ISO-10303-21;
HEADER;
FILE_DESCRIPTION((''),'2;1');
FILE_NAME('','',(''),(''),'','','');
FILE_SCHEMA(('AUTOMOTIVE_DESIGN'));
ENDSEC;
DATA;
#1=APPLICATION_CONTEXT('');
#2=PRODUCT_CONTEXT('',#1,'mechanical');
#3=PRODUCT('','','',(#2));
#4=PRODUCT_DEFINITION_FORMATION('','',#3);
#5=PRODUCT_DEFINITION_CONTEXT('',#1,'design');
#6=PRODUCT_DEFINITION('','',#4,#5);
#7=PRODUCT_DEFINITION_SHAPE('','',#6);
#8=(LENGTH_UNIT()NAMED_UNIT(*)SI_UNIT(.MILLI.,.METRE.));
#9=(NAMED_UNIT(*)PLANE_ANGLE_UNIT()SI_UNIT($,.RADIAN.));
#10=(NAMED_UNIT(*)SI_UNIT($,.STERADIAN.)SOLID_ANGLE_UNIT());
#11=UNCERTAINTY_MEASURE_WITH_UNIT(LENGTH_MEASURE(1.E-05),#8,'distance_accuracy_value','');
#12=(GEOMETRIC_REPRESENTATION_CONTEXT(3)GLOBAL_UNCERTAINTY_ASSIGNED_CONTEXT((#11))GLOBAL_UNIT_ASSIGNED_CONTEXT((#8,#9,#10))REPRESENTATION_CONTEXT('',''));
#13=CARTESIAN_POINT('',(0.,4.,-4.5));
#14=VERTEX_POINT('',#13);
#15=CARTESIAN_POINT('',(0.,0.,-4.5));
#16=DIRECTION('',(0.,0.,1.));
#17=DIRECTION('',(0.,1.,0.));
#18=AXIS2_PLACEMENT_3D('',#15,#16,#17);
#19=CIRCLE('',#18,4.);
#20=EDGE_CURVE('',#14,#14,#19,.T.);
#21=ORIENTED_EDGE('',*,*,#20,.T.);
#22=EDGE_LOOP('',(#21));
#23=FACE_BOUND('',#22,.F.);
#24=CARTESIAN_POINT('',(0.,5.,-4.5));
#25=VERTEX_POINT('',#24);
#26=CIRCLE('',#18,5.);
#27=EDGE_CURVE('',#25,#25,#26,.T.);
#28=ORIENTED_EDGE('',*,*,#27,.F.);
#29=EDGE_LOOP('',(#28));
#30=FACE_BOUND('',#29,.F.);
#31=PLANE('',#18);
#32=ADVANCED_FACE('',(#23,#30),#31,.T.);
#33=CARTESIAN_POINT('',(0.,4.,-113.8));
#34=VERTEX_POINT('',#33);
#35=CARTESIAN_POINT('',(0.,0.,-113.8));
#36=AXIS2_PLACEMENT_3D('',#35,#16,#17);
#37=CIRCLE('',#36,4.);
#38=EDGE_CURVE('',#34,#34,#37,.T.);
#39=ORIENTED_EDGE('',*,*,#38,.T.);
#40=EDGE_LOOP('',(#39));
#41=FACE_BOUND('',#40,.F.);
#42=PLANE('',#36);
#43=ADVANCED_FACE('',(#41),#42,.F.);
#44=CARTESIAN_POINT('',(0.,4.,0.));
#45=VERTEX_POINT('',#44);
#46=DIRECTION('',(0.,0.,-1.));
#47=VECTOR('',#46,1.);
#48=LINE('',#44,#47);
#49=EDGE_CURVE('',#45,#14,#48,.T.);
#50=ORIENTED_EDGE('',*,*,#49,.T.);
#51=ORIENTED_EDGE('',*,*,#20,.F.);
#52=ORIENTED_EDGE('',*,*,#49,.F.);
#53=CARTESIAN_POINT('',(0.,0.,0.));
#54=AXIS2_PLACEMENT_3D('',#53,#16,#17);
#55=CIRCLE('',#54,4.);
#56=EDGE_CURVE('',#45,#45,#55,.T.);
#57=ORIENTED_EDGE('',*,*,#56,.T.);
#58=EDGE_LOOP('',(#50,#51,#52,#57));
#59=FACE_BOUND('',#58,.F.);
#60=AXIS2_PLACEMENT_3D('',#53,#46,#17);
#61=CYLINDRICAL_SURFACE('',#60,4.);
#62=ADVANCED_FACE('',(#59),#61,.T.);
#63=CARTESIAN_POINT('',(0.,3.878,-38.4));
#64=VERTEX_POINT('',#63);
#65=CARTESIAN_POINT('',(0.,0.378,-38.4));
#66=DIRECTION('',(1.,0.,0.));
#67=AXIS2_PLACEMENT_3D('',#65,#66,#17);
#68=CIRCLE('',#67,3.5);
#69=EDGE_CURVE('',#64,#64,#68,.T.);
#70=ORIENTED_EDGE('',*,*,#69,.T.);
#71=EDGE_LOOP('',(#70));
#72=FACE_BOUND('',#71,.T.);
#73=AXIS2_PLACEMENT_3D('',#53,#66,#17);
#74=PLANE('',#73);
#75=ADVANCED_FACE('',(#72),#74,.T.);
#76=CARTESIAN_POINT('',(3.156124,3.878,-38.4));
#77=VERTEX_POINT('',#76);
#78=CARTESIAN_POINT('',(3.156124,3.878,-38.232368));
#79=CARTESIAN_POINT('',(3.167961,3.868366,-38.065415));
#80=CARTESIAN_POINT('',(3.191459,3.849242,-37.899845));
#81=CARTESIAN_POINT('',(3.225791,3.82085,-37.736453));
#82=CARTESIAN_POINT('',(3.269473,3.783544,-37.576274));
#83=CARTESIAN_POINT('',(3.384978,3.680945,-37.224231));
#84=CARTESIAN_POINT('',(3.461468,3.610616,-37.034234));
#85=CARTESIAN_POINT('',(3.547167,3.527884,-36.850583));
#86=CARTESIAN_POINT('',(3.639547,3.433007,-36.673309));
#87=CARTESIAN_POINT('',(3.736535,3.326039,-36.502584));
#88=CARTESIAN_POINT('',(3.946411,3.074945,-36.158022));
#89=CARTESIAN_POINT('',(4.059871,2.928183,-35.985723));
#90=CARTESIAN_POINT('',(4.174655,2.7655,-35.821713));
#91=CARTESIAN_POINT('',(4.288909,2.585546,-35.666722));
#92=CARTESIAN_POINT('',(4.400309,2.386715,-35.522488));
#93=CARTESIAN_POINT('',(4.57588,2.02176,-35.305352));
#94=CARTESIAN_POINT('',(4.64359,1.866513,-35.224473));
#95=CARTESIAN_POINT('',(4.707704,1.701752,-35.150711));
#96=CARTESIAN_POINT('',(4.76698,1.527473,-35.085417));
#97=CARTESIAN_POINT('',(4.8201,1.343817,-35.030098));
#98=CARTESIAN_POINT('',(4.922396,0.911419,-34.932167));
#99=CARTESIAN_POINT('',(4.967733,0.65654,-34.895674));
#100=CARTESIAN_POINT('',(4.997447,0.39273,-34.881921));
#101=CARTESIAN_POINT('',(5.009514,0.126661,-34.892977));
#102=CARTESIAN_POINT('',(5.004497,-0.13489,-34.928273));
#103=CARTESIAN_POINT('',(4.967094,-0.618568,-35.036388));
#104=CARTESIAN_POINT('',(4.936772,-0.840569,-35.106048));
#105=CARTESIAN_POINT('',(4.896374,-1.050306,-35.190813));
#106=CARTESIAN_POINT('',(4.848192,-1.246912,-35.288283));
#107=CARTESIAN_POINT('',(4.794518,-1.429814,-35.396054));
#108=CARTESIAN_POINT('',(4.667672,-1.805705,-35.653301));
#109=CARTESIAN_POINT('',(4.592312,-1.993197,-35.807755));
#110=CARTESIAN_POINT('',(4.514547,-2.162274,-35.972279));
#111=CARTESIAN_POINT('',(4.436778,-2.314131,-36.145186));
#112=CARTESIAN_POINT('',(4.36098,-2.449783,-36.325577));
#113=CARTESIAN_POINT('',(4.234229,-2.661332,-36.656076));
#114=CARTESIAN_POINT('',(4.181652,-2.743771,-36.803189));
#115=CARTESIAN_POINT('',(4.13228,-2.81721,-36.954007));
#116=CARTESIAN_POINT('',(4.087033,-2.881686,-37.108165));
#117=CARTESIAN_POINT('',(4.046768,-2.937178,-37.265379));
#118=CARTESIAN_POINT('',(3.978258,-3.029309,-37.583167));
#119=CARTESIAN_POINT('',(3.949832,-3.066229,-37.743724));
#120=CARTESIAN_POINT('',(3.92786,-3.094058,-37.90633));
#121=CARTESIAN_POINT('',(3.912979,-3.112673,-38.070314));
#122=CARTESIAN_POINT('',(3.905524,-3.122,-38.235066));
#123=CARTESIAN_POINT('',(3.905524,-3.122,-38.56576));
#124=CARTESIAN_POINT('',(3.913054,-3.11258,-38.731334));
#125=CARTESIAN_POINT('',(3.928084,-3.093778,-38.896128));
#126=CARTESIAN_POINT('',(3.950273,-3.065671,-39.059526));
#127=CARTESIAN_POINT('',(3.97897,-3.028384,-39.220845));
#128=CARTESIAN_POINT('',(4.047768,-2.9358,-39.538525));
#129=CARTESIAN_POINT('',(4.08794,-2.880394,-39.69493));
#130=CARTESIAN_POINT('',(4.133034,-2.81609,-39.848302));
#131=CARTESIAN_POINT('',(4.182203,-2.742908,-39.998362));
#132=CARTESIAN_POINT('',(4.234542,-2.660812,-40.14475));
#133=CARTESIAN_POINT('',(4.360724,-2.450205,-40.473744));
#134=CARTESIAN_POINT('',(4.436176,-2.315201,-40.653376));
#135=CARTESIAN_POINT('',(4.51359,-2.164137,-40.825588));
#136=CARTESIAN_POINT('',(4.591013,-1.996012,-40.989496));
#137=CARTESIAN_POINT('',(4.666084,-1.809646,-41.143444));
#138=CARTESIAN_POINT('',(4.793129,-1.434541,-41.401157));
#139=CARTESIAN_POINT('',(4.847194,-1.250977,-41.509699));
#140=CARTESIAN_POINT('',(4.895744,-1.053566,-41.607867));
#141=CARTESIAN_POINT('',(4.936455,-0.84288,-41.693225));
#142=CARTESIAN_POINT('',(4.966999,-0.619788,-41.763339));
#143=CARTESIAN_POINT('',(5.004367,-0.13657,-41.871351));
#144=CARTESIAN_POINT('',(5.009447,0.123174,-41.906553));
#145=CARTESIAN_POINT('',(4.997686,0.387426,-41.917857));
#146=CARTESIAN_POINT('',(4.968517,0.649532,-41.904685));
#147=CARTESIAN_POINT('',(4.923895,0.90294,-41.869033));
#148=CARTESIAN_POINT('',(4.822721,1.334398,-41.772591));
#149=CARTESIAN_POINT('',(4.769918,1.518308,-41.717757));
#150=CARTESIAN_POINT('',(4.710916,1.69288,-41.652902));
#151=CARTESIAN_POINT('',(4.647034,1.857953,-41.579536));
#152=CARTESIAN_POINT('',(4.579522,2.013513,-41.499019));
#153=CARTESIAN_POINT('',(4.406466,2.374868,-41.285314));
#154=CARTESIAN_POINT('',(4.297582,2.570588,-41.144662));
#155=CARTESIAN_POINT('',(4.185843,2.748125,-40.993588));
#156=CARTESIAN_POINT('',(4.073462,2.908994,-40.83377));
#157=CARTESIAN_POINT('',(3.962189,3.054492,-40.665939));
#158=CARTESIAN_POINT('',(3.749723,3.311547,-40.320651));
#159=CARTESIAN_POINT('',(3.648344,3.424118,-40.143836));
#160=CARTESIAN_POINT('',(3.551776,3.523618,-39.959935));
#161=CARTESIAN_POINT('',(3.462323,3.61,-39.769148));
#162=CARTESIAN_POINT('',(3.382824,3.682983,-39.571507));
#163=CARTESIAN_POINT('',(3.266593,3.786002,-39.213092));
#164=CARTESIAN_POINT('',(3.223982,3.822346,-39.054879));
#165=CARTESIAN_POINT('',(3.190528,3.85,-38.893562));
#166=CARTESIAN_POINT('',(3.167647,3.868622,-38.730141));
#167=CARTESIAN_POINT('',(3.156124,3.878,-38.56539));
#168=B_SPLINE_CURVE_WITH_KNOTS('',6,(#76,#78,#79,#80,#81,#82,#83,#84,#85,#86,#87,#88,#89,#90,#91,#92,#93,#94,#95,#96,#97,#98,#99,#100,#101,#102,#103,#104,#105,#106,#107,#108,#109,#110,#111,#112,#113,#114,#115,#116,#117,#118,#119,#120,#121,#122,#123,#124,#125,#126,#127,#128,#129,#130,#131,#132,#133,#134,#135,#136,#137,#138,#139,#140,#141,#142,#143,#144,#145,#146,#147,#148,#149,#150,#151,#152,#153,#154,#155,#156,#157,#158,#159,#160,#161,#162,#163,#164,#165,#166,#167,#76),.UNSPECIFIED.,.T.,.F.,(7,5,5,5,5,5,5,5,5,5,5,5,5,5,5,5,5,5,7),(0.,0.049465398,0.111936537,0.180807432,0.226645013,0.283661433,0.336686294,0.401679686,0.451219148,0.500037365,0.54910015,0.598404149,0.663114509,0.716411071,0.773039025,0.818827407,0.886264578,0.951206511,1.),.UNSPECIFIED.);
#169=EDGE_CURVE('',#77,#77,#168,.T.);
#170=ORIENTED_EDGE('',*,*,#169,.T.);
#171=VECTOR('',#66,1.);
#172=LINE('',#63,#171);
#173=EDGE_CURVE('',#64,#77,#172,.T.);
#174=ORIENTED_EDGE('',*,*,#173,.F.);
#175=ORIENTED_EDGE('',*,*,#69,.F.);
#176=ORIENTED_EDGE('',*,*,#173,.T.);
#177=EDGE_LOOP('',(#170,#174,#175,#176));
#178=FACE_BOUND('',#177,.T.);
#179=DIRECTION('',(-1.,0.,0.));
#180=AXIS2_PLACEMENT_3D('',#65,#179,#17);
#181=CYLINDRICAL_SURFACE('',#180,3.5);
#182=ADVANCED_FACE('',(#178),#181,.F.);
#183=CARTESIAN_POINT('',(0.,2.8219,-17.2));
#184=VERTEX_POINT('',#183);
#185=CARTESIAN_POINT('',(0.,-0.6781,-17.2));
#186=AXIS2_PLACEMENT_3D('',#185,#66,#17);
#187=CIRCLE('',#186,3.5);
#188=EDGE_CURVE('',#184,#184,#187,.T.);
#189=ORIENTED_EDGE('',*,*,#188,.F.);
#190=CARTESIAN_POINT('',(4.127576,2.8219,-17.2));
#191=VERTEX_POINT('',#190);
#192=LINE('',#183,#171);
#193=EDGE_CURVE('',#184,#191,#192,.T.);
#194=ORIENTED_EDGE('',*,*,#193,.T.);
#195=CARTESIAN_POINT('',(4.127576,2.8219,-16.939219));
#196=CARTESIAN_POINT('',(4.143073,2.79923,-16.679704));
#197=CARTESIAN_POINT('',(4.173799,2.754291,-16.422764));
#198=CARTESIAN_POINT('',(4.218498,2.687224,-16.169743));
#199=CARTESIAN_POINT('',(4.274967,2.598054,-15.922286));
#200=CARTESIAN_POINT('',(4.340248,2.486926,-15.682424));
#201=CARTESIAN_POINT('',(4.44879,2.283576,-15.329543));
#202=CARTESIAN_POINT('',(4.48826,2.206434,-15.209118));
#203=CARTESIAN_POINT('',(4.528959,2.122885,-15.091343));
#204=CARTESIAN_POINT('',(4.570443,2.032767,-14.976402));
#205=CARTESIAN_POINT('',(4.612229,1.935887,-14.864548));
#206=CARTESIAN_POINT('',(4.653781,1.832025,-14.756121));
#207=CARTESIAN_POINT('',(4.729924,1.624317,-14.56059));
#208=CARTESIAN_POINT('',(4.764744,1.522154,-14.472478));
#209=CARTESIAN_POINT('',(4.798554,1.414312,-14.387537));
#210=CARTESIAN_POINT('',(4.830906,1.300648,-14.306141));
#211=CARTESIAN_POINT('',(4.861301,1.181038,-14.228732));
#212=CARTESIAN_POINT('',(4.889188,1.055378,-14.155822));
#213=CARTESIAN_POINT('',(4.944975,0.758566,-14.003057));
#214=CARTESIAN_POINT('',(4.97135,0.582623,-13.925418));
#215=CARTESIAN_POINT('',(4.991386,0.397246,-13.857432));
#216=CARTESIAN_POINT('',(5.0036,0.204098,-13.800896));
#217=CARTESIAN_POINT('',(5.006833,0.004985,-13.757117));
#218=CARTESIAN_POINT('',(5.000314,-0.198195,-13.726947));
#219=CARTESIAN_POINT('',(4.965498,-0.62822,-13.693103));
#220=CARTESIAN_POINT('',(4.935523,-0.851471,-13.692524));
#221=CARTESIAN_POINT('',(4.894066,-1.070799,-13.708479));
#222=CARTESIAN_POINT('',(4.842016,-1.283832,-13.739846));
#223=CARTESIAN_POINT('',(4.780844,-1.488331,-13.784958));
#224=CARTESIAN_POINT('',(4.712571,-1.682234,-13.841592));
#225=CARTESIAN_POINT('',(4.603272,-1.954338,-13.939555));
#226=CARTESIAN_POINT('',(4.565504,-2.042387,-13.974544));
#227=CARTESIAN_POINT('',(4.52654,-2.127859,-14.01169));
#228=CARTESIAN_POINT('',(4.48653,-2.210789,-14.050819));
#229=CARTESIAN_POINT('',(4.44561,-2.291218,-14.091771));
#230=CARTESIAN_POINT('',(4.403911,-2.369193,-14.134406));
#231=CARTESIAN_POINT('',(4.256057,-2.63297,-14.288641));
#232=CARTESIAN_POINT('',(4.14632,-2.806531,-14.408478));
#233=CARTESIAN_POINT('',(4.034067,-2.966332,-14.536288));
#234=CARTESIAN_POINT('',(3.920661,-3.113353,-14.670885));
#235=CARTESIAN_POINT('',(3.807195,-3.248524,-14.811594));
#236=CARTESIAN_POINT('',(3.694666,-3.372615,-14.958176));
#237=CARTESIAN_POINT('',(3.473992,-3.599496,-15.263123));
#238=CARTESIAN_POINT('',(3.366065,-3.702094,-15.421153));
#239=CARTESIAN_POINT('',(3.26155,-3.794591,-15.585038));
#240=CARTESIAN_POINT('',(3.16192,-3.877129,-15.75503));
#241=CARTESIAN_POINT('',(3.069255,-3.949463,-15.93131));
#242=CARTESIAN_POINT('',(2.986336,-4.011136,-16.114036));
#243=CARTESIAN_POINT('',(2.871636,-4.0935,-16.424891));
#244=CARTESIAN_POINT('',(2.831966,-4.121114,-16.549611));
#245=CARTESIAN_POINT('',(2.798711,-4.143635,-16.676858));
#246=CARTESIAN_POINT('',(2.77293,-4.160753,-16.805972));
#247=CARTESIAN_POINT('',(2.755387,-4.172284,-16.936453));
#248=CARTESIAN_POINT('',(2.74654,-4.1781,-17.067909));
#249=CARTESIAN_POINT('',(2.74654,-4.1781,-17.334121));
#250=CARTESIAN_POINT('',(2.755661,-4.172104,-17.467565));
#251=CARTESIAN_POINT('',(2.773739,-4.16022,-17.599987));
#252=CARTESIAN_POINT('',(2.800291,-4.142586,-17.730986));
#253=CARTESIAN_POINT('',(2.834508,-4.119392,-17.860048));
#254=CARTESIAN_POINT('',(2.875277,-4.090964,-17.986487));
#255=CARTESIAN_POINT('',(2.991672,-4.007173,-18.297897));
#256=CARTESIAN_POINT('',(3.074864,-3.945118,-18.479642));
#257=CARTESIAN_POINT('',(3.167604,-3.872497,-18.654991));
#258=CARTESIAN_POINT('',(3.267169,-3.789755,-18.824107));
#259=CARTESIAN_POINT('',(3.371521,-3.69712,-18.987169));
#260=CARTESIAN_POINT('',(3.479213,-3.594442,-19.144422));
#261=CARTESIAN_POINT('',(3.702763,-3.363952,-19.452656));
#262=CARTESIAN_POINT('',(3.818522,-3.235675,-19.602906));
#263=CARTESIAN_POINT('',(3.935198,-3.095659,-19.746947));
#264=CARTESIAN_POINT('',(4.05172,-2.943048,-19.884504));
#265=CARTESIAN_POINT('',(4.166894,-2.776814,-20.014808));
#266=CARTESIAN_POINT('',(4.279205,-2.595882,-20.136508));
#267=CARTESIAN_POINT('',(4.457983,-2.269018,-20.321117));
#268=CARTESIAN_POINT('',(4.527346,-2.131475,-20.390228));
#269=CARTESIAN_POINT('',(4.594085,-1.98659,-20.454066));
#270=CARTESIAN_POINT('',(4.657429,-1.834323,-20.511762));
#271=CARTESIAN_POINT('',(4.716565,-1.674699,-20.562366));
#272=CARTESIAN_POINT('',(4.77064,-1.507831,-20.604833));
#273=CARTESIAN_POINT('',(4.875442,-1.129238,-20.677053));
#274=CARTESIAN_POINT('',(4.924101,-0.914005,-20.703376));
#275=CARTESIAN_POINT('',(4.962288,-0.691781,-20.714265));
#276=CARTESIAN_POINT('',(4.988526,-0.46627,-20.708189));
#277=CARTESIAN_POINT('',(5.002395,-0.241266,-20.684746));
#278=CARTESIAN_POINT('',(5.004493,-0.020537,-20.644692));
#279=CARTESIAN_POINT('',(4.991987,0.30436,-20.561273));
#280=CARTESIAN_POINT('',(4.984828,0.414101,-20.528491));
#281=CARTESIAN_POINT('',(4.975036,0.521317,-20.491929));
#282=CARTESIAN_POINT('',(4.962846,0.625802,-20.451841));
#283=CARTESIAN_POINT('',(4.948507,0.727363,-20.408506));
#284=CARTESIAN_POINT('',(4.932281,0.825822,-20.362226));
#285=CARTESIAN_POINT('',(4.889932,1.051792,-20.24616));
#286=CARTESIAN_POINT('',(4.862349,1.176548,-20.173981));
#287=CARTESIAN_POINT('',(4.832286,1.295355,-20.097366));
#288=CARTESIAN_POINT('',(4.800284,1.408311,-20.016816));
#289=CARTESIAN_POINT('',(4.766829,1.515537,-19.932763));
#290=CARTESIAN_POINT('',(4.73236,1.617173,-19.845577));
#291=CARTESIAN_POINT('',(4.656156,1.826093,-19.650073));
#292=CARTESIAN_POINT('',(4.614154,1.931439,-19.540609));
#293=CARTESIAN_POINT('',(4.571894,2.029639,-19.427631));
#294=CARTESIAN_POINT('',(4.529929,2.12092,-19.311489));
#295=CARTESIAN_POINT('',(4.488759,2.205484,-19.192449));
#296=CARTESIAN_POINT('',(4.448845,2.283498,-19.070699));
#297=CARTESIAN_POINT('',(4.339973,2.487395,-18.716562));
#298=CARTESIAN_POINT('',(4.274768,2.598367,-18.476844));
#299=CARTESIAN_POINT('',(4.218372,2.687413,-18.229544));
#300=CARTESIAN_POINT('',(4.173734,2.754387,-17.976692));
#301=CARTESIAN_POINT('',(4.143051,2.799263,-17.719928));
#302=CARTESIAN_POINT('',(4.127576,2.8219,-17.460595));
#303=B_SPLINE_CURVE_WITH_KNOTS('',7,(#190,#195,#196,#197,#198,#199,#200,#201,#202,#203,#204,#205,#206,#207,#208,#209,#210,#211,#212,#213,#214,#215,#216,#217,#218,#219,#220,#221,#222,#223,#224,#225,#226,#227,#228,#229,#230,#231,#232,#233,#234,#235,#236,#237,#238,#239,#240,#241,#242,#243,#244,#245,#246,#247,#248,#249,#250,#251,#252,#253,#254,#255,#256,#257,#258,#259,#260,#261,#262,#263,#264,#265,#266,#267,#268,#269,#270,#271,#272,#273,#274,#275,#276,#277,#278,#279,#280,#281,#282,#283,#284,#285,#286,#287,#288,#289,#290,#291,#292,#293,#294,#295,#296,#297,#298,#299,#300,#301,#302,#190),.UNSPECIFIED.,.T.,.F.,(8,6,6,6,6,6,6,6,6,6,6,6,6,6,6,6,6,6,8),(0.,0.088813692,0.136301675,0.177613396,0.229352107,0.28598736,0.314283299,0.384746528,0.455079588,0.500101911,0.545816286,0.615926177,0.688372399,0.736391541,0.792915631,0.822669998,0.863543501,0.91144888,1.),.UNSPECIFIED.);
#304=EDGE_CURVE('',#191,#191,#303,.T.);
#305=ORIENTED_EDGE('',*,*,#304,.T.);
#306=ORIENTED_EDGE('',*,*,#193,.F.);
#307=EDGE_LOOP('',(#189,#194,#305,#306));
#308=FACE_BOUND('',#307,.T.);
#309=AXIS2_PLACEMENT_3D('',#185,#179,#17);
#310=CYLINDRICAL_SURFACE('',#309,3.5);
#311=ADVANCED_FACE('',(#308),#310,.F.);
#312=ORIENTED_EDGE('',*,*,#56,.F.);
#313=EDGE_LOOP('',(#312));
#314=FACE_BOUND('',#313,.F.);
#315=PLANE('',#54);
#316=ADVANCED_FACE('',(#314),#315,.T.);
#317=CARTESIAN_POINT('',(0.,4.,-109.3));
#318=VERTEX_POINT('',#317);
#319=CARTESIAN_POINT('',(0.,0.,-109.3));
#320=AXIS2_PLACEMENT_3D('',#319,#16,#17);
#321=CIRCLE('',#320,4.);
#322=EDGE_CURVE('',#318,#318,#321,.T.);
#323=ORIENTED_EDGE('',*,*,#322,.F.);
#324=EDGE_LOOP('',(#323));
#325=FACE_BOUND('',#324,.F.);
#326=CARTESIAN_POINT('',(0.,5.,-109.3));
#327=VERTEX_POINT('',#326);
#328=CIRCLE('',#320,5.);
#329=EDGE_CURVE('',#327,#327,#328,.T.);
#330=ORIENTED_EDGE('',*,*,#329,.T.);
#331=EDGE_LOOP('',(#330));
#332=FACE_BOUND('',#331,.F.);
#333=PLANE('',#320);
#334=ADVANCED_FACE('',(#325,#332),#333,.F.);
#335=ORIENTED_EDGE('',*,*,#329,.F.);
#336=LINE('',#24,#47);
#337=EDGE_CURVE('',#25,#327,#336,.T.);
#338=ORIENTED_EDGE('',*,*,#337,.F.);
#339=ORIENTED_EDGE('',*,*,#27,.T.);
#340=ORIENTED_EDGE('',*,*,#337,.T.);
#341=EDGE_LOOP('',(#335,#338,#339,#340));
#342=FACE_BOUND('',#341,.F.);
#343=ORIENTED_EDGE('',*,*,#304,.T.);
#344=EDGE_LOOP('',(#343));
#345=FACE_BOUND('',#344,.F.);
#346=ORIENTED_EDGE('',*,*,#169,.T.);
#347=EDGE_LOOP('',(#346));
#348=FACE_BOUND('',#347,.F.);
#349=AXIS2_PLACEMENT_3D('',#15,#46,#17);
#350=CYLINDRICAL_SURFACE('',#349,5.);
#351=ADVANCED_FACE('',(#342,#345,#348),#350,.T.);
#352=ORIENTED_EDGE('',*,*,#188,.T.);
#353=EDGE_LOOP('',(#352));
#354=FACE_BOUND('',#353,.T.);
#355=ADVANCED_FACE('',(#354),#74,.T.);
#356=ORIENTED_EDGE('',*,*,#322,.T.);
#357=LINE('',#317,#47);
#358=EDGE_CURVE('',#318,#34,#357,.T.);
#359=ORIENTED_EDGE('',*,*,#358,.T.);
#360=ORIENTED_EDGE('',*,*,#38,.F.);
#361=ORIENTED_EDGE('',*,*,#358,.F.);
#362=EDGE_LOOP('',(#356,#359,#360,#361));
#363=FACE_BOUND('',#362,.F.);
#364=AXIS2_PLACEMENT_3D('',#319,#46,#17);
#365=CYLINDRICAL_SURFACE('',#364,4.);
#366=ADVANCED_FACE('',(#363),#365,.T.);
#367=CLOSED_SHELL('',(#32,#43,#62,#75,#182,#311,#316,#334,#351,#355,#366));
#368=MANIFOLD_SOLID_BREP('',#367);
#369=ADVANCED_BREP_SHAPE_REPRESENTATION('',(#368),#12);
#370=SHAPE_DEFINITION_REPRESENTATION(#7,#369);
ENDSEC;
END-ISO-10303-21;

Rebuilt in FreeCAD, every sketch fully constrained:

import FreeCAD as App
import Part
import Sketcher

doc = App.newDocument("Part")
body = doc.addObject("PartDesign::Body", "Body")

sketch1 = body.newObject("Sketcher::SketchObject", "Sketch")
sketch1.AttachmentSupport = (doc.getObject("YZ_Plane"), [""])
sketch1.MapMode = "FlatFace"
sketch1.addGeometry(Part.LineSegment(App.Vector(4, 0, 0), App.Vector(0, 0, 0)), False)
sketch1.addGeometry(Part.LineSegment(App.Vector(0, 0, 0), App.Vector(0, -113.8, 0)), False)
sketch1.addGeometry(Part.LineSegment(App.Vector(0, -113.8, 0), App.Vector(4, -113.8, 0)), False)
sketch1.addGeometry(Part.LineSegment(App.Vector(4, -113.8, 0), App.Vector(4, -109.3, 0)), False)
sketch1.addGeometry(Part.LineSegment(App.Vector(4, -109.3, 0), App.Vector(5, -109.3, 0)), False)
sketch1.addGeometry(Part.LineSegment(App.Vector(5, -109.3, 0), App.Vector(5, -4.5, 0)), False)
sketch1.addGeometry(Part.LineSegment(App.Vector(5, -4.5, 0), App.Vector(4, -4.5, 0)), False)
sketch1.addGeometry(Part.LineSegment(App.Vector(4, -4.5, 0), App.Vector(4, 0, 0)), False)
sketch1.addConstraint(Sketcher.Constraint("Coincident", 0, 2, 1, 1))
sketch1.addConstraint(Sketcher.Constraint("Coincident", 1, 2, 2, 1))
sketch1.addConstraint(Sketcher.Constraint("Coincident", 2, 2, 3, 1))
sketch1.addConstraint(Sketcher.Constraint("Coincident", 3, 2, 4, 1))
sketch1.addConstraint(Sketcher.Constraint("Coincident", 4, 2, 5, 1))
sketch1.addConstraint(Sketcher.Constraint("Coincident", 5, 2, 6, 1))
sketch1.addConstraint(Sketcher.Constraint("Coincident", 6, 2, 7, 1))
sketch1.addConstraint(Sketcher.Constraint("Coincident", 7, 2, 0, 1))
sketch1.addConstraint(Sketcher.Constraint("Horizontal", 0))
sketch1.addConstraint(Sketcher.Constraint("Vertical", 1))
sketch1.addConstraint(Sketcher.Constraint("Horizontal", 2))
sketch1.addConstraint(Sketcher.Constraint("Vertical", 3))
sketch1.addConstraint(Sketcher.Constraint("Horizontal", 4))
sketch1.addConstraint(Sketcher.Constraint("Vertical", 5))
sketch1.addConstraint(Sketcher.Constraint("Horizontal", 6))
sketch1.addConstraint(Sketcher.Constraint("Vertical", 7))
sketch1.addConstraint(Sketcher.Constraint("Coincident", 0, 2, -1, 1))
sketch1.addConstraint(Sketcher.Constraint("Vertical", 3, 2, 6, 2))
sketch1.addConstraint(Sketcher.Constraint("Equal", 3, 7))
sketch1.addConstraint(Sketcher.Constraint("DistanceX", 0, 2, 0, 1, 4.0))
sketch1.addConstraint(Sketcher.Constraint("DistanceY", 1, 2, 1, 1, 113.8))
sketch1.addConstraint(Sketcher.Constraint("DistanceY", 3, 1, 3, 2, 4.5))
sketch1.addConstraint(Sketcher.Constraint("DistanceX", -1, 1, 4, 2, 5.0))
revolution = body.newObject("PartDesign::Revolution", "Revolution")
revolution.Profile = sketch1
revolution.ReferenceAxis = (sketch1, ["V_Axis"])
revolution.Angle = 360

sketch2 = body.newObject("Sketcher::SketchObject", "Sketch001")
sketch2.AttachmentSupport = (doc.getObject("YZ_Plane"), [""])
sketch2.MapMode = "FlatFace"
sketch2.addGeometry(Part.Circle(App.Vector(-0.6781, -17.2, 0), App.Vector(0, 0, 1), 3.5), False)
sketch2.addConstraint(Sketcher.Constraint("Diameter", 0, 7.0))
sketch2.addConstraint(Sketcher.Constraint("DistanceY", 0, 3, -1, 1, 17.2))
sketch2.addConstraint(Sketcher.Constraint("DistanceX", 0, 3, -1, 1, 0.678))
pocket1 = body.newObject("PartDesign::Pocket", "Pocket")
pocket1.Profile = sketch2
pocket1.Type = "ThroughAll"
pocket1.Reversed = True

sketch3 = body.newObject("Sketcher::SketchObject", "Sketch002")
sketch3.AttachmentSupport = (doc.getObject("YZ_Plane"), [""])
sketch3.MapMode = "FlatFace"
sketch3.addGeometry(Part.Circle(App.Vector(0.378, -38.4, 0), App.Vector(0, 0, 1), 3.5), False)
sketch3.addConstraint(Sketcher.Constraint("Diameter", 0, 7.0))
sketch3.addConstraint(Sketcher.Constraint("DistanceY", 0, 3, -1, 1, 38.4))
sketch3.addConstraint(Sketcher.Constraint("DistanceX", -1, 1, 0, 3, 0.378))
pocket2 = body.newObject("PartDesign::Pocket", "Pocket001")
pocket2.Profile = sketch3
pocket2.Type = "ThroughAll"
pocket2.Reversed = True

doc.recompute()
